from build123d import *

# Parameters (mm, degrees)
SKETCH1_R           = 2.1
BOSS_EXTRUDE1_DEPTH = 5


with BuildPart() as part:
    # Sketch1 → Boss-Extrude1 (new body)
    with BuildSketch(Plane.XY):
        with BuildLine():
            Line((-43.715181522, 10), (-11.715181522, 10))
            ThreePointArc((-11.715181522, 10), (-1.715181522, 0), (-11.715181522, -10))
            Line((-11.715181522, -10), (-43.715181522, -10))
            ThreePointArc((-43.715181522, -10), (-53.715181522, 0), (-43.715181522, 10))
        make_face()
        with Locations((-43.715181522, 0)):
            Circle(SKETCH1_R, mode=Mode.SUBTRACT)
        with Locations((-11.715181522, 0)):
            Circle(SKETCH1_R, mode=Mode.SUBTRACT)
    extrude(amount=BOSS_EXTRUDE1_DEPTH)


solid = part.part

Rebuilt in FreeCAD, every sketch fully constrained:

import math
import FreeCAD as App
import Part
import Sketcher
from FreeCAD import Vector

doc = App.newDocument("Part")
params = doc.addObject("Spreadsheet::Sheet", "Params")
for row, (alias, value) in enumerate([
    ("sketch1_radius", "10 mm"),
    ("sketch1_diameter", "4.2 mm"),
    ("sketch1_width", "32 mm"),
    ("pad1_length", "5 mm"),
], start=1):
    params.set(f"A{row}", alias)
    params.set(f"B{row}", "=" + value)
    params.setAlias(f"B{row}", alias)

body = doc.addObject("PartDesign::Body", "Body")

# Sketch on XY plane
sketch1 = doc.addObject("Sketcher::SketchObject", "Sketch")
body.addObject(sketch1)
sketch1.AttachmentSupport = (doc.XY_Plane, [""])
sketch1.MapMode = "FlatFace"
sketch1.addGeometry(Part.LineSegment(Vector(-11.715182, 10, 0), Vector(-43.715182, 10, 0)), False)
sketch1.addGeometry(Part.ArcOfCircle(Part.Circle(Vector(-43.715182, 0, 0), Vector(0, 0, 1), 10), math.radians(90), math.radians(270)), False)
sketch1.addGeometry(Part.LineSegment(Vector(-43.715182, -10, 0), Vector(-11.715182, -10, 0)), False)
sketch1.addGeometry(Part.ArcOfCircle(Part.Circle(Vector(-11.715182, 0, 0), Vector(0, 0, 1), 10), math.radians(-90), math.radians(90)), False)
sketch1.addGeometry(Part.Circle(Vector(-11.715182, 0, 0), Vector(0, 0, 1), 2.1), False)
sketch1.addGeometry(Part.Circle(Vector(-43.715182, 0, 0), Vector(0, 0, 1), 2.1), False)
sketch1.addConstraint(Sketcher.Constraint("Tangent", 0, 2, 1, 1))
sketch1.addConstraint(Sketcher.Constraint("Tangent", 1, 2, 2, 1))
sketch1.addConstraint(Sketcher.Constraint("Tangent", 2, 2, 3, 1))
sketch1.addConstraint(Sketcher.Constraint("Tangent", 3, 2, 0, 1))
sketch1.addConstraint(Sketcher.Constraint("Horizontal", 0))
sketch1.addConstraint(Sketcher.Constraint("Horizontal", 2))
sketch1.addConstraint(Sketcher.Constraint("Coincident", 4, 3, 3, 3))
sketch1.addConstraint(Sketcher.Constraint("Coincident", 5, 3, 1, 3))
sketch1.addConstraint(Sketcher.Constraint("Equal", 4, 5))
sketch1.addConstraint(Sketcher.Constraint("PointOnObject", 1, 3, -1))
sketch1.addConstraint(Sketcher.Constraint("Radius", 1, 10.0))
sketch1.addConstraint(Sketcher.Constraint("Diameter", 4, 4.2))
sketch1.addConstraint(Sketcher.Constraint("DistanceX", 0, 2, 0, 1, 32.0))
sketch1.addConstraint(Sketcher.Constraint("DistanceX", 1, 3, -1, 1, 43.715182))
sketch1.setExpression("Constraints[10]", "Params.sketch1_radius")
sketch1.setExpression("Constraints[11]", "Params.sketch1_diameter")
sketch1.setExpression("Constraints[12]", "Params.sketch1_width")
pad1 = doc.addObject("PartDesign::Pad", "Pad")
body.addObject(pad1)
pad1.Profile = sketch1
pad1.setExpression("Length", "Params.pad1_length")

doc.recompute()
